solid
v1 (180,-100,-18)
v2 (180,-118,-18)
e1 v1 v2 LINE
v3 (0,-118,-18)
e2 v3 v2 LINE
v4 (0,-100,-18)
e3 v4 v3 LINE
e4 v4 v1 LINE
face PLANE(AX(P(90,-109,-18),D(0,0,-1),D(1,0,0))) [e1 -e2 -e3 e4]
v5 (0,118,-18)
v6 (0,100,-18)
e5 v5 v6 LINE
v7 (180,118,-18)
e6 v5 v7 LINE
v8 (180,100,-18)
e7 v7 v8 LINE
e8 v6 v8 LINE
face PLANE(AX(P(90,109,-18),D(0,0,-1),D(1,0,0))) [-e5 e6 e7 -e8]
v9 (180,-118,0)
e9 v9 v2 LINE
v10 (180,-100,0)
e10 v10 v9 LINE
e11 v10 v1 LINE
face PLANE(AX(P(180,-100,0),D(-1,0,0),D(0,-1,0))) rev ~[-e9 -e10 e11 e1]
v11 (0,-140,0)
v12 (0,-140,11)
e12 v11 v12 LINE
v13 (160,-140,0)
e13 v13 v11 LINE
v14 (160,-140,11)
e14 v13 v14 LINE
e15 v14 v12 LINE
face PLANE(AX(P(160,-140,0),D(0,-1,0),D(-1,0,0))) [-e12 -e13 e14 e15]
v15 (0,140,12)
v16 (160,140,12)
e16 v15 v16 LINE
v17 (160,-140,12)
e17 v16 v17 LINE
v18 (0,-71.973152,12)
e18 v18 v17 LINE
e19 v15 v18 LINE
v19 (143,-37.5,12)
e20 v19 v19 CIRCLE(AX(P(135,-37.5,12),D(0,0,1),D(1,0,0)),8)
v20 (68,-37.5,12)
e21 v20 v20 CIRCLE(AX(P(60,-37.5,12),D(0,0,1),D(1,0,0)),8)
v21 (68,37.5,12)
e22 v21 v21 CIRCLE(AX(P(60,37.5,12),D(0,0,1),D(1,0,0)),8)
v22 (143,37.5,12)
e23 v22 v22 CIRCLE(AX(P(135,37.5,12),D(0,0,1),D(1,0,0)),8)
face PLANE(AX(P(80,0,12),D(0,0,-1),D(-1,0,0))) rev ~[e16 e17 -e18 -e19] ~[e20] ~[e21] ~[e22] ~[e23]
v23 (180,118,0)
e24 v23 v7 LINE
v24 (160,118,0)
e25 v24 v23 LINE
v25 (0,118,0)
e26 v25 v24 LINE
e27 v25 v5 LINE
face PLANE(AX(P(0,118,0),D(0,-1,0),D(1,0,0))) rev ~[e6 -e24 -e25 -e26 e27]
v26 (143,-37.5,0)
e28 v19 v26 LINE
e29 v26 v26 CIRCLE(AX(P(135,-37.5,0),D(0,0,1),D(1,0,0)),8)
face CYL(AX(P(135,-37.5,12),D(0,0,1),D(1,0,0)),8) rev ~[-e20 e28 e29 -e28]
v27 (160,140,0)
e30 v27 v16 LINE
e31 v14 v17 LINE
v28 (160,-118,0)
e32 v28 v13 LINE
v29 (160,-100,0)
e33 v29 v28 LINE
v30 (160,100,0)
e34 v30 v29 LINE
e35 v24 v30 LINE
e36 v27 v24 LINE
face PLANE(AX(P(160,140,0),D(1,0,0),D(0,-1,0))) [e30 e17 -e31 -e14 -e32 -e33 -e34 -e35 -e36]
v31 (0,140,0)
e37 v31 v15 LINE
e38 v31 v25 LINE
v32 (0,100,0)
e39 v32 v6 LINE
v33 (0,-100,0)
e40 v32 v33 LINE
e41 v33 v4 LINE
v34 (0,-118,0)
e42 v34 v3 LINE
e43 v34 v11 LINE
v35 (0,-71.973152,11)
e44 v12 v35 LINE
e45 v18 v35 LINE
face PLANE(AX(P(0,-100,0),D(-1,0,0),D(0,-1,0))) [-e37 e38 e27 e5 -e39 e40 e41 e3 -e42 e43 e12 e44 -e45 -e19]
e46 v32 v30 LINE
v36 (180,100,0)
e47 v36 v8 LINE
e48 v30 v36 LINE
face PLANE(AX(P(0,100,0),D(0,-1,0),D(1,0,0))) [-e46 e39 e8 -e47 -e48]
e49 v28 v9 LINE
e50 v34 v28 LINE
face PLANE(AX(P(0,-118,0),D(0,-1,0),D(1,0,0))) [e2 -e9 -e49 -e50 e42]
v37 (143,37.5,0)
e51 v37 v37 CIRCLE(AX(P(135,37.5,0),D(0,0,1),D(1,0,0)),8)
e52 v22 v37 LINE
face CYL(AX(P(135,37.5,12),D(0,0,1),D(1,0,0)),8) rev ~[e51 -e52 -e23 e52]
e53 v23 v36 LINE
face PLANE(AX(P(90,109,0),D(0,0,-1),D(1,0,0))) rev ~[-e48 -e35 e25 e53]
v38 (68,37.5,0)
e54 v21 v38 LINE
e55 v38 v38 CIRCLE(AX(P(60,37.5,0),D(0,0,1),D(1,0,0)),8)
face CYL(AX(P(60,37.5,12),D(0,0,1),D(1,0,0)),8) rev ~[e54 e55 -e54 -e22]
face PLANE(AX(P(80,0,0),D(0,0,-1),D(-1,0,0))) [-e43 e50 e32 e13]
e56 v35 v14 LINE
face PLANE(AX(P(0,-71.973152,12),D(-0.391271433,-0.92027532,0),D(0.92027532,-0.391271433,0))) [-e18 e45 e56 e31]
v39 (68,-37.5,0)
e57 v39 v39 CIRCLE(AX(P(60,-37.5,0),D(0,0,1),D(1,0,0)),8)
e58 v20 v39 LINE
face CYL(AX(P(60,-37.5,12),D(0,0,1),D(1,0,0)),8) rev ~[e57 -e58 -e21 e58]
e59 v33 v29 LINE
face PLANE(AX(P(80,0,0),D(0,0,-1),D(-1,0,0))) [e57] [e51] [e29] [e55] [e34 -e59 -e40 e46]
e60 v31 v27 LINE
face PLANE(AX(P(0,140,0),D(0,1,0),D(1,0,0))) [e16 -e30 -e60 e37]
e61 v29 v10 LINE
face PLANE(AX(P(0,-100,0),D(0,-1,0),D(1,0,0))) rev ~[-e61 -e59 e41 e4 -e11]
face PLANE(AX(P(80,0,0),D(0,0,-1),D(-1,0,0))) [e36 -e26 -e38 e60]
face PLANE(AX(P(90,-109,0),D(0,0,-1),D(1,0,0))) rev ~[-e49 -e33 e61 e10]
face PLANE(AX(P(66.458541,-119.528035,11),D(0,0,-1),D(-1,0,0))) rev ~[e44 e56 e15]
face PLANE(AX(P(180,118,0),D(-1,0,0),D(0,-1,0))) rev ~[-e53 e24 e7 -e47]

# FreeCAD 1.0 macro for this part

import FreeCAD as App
import Part
import Sketcher


def add_polygon(sketch, points):
    """Adds a closed chain of lines whose ends are joined by coincident constraints."""
    first, n = sketch.GeometryCount, len(points)
    for a, b in zip(points, points[1:] + points[:1]):
        sketch.addGeometry(Part.LineSegment(App.Vector(*a, 0), App.Vector(*b, 0)), False)
    for i in range(n):
        sketch.addConstraint(Sketcher.Constraint("Coincident", first + i, 2, first + (i + 1) % n, 1))

doc = App.newDocument("Part")
body = doc.addObject("PartDesign::Body", "Body")

# Sketch on XY plane
sketch1 = body.newObject("Sketcher::SketchObject", "Sketch")
sketch1.AttachmentSupport = (doc.getObject("XY_Plane"), [""])
sketch1.MapMode = "FlatFace"
add_polygon(sketch1, [(0, 140), (0, -140), (160, -140), (160, 140)])  # lines 0-3
sketch1.addConstraint(Sketcher.Constraint("Vertical", 0))
sketch1.addConstraint(Sketcher.Constraint("Horizontal", 1))
sketch1.addConstraint(Sketcher.Constraint("Vertical", 2))
sketch1.addConstraint(Sketcher.Constraint("Horizontal", 3))
sketch1.addConstraint(Sketcher.Constraint("Symmetric", 0, 2, 3, 2, -1, 1))
sketch1.addConstraint(Sketcher.Constraint("DistanceX", 1, 1, 1, 2, 160.0))
sketch1.addConstraint(Sketcher.Constraint("DistanceY", 0, 2, 0, 1, 280.0))
pad1 = body.newObject("PartDesign::Pad", "Pad")
pad1.Profile = sketch1
pad1.Length = 12

# Sketch on XY plane
sketch2 = body.newObject("Sketcher::SketchObject", "Sketch001")
sketch2.AttachmentSupport = (doc.getObject("XY_Plane"), [""])
sketch2.MapMode = "FlatFace"
sketch2.AttachmentOffset = App.Placement(App.Vector(0, 0, 12), App.Rotation())
add_polygon(sketch2, [(0, -71.973152), (0, -140), (160, -140)])  # lines 0-2
sketch2.addConstraint(Sketcher.Constraint("Vertical", 0))
sketch2.addConstraint(Sketcher.Constraint("Horizontal", 1))
sketch2.addConstraint(Sketcher.Constraint("PointOnObject", 0, 2, -2))
sketch2.addConstraint(Sketcher.Constraint("DistanceX", 1, 1, 1, 2, 160.0))
sketch2.addConstraint(Sketcher.Constraint("DistanceY", 0, 2, -1, 1, 140.0))
sketch2.addConstraint(Sketcher.Constraint("DistanceY", 0, 2, 0, 1, 68.026848))
pocket1 = body.newObject("PartDesign::Pocket", "Pocket")
pocket1.Profile = sketch2
pocket1.Length = 1

# Sketch on XY plane
sketch3 = body.newObject("Sketcher::SketchObject", "Sketch002")
sketch3.AttachmentSupport = (doc.getObject("XY_Plane"), [""])
sketch3.MapMode = "FlatFace"
sketch3.AttachmentOffset = App.Placement(App.Vector(0, 0, 12), App.Rotation())
sketch3.addGeometry(Part.Circle(App.Vector(60, 37.5, 0), App.Vector(0, 0, 1), 8), False)
sketch3.addGeometry(Part.Circle(App.Vector(135, 37.5, 0), App.Vector(0, 0, 1), 8), False)
sketch3.addGeometry(Part.Circle(App.Vector(135, -37.5, 0), App.Vector(0, 0, 1), 8), False)
sketch3.addGeometry(Part.Circle(App.Vector(60, -37.5, 0), App.Vector(0, 0, 1), 8), False)
sketch3.addConstraint(Sketcher.Constraint("Equal", 0, 1))
sketch3.addConstraint(Sketcher.Constraint("Equal", 1, 2))
sketch3.addConstraint(Sketcher.Constraint("Equal", 2, 3))
sketch3.addConstraint(Sketcher.Constraint("Symmetric", 1, 3, 2, 3, -1))
sketch3.addConstraint(Sketcher.Constraint("Symmetric", 0, 3, 3, 3, -1))
sketch3.addConstraint(Sketcher.Constraint("Horizontal", 0, 3, 1, 3))
sketch3.addConstraint(Sketcher.Constraint("Diameter", 0, 16.0))
sketch3.addConstraint(Sketcher.Constraint("DistanceX", -1, 1, 0, 3, 60.0))
sketch3.addConstraint(Sketcher.Constraint("DistanceX", -1, 1, 1, 3, 135.0))
sketch3.addConstraint(Sketcher.Constraint("DistanceY", 2, 3, 1, 3, 75.0))
pocket2 = body.newObject("PartDesign::Pocket", "Pocket001")
pocket2.Profile = sketch3
pocket2.Type = "ThroughAll"

# Sketch on XY plane
sketch4 = body.newObject("Sketcher::SketchObject", "Sketch003")
sketch4.AttachmentSupport = (doc.getObject("XY_Plane"), [""])
sketch4.MapMode = "FlatFace"
add_polygon(sketch4, [(0, -118), (0, -100), (180, -100), (180, -118)])  # lines 0-3
add_polygon(sketch4, [(0, 100), (0, 118), (180, 118), (180, 100)])  # lines 4-7
sketch4.addConstraint(Sketcher.Constraint("Vertical", 0))
sketch4.addConstraint(Sketcher.Constraint("Horizontal", 1))
sketch4.addConstraint(Sketcher.Constraint("Vertical", 2))
sketch4.addConstraint(Sketcher.Constraint("Horizontal", 3))
sketch4.addConstraint(Sketcher.Constraint("Vertical", 4))
sketch4.addConstraint(Sketcher.Constraint("Horizontal", 5))
sketch4.addConstraint(Sketcher.Constraint("Vertical", 6))
sketch4.addConstraint(Sketcher.Constraint("Horizontal", 7))
sketch4.addConstraint(Sketcher.Constraint("Symmetric", 3, 2, 4, 2, -1, 1))
sketch4.addConstraint(Sketcher.Constraint("Symmetric", 1, 2, 6, 2, -1))
sketch4.addConstraint(Sketcher.Constraint("PointOnObject", 0, 2, -2))
sketch4.addConstraint(Sketcher.Constraint("DistanceX", 1, 1, 1, 2, 180.0))
sketch4.addConstraint(Sketcher.Constraint("DistanceY", 0, 1, 0, 2, 18.0))
sketch4.addConstraint(Sketcher.Constraint("DistanceY", 0, 2, -1, 1, 100.0))
pad2 = body.newObject("PartDesign::Pad", "Pad001")
pad2.Profile = sketch4
pad2.Length = 18
pad2.Reversed = True

doc.recompute()
